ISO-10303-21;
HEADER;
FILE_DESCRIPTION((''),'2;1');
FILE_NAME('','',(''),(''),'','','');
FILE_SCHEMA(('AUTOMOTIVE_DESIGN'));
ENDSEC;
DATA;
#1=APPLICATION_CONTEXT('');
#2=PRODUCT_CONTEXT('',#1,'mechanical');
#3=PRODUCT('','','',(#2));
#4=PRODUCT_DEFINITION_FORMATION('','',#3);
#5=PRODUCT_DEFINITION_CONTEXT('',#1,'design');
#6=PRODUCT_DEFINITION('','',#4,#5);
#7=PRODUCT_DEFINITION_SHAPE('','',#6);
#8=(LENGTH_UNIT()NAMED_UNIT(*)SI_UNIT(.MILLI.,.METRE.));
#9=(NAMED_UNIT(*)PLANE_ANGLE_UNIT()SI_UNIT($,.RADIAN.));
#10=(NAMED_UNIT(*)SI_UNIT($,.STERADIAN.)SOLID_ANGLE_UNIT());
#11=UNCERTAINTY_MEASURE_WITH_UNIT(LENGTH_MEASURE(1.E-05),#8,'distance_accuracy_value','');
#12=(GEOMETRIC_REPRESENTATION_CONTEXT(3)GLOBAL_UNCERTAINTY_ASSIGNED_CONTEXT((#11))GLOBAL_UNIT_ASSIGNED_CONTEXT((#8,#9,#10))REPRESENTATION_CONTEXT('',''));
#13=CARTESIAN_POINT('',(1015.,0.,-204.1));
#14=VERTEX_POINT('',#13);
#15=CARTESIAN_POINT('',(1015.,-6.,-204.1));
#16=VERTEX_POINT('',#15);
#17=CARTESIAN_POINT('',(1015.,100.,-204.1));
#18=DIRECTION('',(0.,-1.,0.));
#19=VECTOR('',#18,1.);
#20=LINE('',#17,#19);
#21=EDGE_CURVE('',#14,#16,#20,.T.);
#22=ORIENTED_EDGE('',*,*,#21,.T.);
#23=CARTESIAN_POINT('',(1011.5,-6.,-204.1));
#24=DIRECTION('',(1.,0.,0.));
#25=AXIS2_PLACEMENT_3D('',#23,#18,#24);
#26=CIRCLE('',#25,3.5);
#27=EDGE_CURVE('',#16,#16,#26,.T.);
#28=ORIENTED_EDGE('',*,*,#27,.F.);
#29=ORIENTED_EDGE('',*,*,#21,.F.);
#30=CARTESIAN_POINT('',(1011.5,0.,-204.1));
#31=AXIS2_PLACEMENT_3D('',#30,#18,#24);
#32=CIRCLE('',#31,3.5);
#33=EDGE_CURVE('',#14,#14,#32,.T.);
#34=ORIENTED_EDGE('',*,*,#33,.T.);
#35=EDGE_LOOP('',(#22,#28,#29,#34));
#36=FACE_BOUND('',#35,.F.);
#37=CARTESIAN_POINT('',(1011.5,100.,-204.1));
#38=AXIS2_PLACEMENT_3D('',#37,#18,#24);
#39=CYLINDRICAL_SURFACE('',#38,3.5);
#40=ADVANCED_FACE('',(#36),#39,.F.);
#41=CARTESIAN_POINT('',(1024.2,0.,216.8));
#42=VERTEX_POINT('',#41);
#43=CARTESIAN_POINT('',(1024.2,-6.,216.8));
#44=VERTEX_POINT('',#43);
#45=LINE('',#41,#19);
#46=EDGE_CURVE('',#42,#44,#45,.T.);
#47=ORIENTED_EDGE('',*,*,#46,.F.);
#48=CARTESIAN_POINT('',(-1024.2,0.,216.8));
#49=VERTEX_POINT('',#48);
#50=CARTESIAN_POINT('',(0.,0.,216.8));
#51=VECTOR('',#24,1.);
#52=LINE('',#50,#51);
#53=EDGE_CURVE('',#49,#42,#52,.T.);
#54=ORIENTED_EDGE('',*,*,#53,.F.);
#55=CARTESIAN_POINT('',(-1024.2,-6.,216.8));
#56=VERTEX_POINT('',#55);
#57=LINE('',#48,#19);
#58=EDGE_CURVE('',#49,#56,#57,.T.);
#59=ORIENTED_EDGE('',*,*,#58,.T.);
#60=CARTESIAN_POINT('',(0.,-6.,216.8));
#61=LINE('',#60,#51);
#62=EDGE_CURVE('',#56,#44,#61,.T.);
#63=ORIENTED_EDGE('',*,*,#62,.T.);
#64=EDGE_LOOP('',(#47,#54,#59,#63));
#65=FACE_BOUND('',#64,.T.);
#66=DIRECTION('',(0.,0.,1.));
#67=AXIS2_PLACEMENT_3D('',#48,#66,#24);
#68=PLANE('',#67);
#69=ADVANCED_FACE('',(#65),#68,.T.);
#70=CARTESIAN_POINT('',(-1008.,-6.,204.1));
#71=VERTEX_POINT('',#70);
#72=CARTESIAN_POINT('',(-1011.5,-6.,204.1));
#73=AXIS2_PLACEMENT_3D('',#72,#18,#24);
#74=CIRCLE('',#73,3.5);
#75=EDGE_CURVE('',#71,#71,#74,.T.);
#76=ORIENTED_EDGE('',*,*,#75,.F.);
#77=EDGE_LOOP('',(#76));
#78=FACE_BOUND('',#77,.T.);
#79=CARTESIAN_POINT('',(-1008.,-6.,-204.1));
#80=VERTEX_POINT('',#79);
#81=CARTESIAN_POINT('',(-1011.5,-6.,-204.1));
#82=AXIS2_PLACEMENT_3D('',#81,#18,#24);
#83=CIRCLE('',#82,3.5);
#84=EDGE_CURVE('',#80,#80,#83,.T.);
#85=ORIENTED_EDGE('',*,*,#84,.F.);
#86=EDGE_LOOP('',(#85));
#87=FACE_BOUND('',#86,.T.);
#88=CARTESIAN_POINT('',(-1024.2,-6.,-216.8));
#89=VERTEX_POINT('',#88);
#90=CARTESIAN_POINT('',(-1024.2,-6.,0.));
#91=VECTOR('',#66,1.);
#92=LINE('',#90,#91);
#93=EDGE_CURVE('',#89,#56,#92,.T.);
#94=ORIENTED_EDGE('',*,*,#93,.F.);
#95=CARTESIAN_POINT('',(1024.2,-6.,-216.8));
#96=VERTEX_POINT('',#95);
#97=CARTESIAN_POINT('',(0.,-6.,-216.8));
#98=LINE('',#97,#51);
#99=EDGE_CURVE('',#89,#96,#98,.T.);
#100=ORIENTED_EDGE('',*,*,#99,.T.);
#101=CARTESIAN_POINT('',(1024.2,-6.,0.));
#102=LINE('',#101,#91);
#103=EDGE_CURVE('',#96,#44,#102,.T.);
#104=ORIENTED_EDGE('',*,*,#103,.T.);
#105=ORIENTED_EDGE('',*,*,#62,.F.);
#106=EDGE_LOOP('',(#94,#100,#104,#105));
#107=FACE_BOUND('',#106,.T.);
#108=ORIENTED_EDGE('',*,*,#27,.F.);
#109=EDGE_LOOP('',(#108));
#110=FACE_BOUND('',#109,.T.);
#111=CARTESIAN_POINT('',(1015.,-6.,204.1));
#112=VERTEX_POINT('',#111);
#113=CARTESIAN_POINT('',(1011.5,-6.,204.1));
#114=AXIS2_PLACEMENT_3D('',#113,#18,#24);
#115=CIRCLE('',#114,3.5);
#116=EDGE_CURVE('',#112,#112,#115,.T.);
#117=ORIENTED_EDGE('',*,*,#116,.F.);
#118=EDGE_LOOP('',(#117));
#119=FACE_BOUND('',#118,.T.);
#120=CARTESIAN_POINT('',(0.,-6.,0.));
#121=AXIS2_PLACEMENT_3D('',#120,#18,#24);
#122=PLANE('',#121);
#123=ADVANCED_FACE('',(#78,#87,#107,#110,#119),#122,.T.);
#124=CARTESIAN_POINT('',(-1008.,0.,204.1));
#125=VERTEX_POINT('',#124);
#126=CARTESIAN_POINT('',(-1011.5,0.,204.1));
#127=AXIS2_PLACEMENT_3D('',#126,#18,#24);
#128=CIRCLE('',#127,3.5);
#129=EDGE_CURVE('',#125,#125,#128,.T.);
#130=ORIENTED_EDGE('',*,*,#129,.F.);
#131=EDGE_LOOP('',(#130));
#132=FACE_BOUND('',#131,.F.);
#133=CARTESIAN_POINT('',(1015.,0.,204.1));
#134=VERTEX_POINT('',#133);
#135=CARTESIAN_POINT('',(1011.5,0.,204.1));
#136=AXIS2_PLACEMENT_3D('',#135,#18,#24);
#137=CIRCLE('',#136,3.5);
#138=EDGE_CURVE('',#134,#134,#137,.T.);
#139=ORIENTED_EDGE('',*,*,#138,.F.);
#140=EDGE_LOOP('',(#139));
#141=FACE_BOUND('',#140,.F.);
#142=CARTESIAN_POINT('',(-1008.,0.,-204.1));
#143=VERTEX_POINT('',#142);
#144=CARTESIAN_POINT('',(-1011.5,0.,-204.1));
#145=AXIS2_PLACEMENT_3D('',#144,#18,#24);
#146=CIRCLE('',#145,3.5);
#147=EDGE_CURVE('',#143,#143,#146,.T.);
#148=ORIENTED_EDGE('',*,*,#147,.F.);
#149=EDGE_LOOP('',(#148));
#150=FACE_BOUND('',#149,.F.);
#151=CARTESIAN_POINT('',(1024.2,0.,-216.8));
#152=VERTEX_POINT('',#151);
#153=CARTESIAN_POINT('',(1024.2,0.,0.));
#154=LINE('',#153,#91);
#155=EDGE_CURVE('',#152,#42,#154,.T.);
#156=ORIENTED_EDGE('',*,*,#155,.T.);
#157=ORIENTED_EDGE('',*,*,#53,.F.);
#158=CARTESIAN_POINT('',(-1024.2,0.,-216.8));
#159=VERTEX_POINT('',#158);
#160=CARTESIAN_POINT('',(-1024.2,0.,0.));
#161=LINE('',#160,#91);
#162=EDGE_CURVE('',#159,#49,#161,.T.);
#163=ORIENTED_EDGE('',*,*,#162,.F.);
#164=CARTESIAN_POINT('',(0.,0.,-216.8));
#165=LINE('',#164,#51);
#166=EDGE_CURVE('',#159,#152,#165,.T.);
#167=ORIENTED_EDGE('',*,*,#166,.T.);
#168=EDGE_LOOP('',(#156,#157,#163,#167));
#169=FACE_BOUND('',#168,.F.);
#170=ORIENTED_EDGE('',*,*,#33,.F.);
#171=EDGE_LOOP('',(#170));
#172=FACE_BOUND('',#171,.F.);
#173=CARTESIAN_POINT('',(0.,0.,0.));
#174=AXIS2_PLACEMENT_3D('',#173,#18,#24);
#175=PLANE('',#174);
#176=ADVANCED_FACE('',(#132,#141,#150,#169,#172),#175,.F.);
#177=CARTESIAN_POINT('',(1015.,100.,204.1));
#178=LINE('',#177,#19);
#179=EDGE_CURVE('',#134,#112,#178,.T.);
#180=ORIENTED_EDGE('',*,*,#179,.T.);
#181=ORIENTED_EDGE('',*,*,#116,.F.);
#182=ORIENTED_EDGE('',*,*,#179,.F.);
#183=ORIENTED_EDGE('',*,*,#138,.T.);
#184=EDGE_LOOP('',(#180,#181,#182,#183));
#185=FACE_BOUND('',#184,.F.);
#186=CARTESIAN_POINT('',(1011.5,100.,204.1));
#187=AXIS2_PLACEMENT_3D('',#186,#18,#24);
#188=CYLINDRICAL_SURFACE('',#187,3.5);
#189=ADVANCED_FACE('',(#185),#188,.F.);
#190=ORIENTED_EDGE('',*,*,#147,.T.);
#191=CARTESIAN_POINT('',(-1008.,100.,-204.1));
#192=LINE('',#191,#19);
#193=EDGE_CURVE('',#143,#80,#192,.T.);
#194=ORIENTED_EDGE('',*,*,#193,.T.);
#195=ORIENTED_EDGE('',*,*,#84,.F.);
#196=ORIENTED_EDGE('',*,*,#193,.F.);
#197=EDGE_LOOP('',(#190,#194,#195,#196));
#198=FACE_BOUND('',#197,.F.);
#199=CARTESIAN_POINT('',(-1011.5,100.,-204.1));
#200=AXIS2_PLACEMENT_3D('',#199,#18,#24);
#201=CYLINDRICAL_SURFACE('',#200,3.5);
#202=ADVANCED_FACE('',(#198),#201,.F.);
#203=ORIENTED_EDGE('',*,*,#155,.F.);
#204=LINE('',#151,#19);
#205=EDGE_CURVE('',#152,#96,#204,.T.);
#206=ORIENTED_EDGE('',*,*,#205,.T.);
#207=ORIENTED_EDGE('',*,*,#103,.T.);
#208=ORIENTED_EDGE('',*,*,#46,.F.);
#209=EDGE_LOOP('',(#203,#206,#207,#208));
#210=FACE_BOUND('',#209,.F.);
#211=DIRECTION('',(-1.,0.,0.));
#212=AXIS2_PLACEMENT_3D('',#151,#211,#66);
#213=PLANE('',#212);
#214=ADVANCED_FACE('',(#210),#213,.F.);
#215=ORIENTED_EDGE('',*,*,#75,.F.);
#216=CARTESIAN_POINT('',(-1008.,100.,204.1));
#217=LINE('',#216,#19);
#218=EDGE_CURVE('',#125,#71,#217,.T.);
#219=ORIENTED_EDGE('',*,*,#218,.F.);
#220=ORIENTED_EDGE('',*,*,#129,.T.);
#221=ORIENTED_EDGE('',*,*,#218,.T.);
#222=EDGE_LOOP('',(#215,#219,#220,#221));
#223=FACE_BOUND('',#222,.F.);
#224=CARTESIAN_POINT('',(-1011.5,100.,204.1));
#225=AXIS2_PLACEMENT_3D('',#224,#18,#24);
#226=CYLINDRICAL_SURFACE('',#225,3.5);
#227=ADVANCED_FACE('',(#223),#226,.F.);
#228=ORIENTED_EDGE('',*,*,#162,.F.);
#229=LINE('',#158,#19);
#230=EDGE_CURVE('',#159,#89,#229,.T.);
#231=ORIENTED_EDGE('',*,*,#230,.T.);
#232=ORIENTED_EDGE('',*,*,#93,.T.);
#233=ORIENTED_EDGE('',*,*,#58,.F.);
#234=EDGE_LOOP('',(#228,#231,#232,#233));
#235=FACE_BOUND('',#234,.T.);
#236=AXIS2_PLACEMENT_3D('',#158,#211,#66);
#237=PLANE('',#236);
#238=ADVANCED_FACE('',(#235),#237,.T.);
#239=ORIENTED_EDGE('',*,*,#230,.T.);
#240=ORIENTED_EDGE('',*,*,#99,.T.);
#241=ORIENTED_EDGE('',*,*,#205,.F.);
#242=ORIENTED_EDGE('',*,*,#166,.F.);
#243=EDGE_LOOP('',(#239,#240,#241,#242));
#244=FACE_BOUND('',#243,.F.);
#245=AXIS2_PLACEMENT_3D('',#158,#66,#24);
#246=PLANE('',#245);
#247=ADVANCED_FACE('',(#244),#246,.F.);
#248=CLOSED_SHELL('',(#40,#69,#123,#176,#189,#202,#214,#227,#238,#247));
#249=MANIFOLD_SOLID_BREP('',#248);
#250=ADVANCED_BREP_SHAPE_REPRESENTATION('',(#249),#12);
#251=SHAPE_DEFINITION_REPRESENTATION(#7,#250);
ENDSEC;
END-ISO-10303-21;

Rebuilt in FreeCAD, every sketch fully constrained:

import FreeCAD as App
import Part
import Sketcher

V = App.Vector
Q = App.Units.Quantity

doc = App.newDocument("Part")
body = doc.addObject("PartDesign::Body", "Body")

# Sketch on XZ plane
sketch1 = body.newObject("Sketcher::SketchObject", "Sketch")
sketch1.AttachmentSupport = (doc.getObject("XZ_Plane"), [""])
sketch1.MapMode = "FlatFace"
sketch1.addGeometry([
    Part.LineSegment(V(-1024, 217, 0), V(-1024, -217, 0)),
    Part.LineSegment(V(-1024, -217, 0), V(1024, -217, 0)),
    Part.LineSegment(V(1024, -217, 0), V(1024, 217, 0)),
    Part.LineSegment(V(1024, 217, 0), V(-1024, 217, 0)),
], False)
sketch1.addConstraint([
    Sketcher.Constraint("Coincident", 0, 2, 1, 1),
    Sketcher.Constraint("Coincident", 1, 2, 2, 1),
    Sketcher.Constraint("Coincident", 2, 2, 3, 1),
    Sketcher.Constraint("Coincident", 3, 2, 0, 1),
    Sketcher.Constraint("Vertical", 0),
    Sketcher.Constraint("Horizontal", 1),
    Sketcher.Constraint("Vertical", 2),
    Sketcher.Constraint("Horizontal", 3),
    Sketcher.Constraint("Symmetric", 0, 2, 2, 2, -1, 1),
    Sketcher.Constraint("DistanceX", 1, 1, 1, 2, Q("2048.4 mm")),
    Sketcher.Constraint("DistanceY", 0, 2, 0, 1, Q("433.6 mm")),
])
pad1 = body.newObject("PartDesign::Pad", "Pad")
pad1.Profile = sketch1
pad1.Length = 6

# Sketch on XZ plane
sketch2 = body.newObject("Sketcher::SketchObject", "Sketch001")
sketch2.AttachmentSupport = (doc.getObject("XZ_Plane"), [""])
sketch2.MapMode = "FlatFace"
sketch2.addGeometry([
    Part.Circle(V(-1011.5, 204.1, 0), V(0, 0, 1), 3.5),
    Part.Circle(V(-1011.5, -204.1, 0), V(0, 0, 1), 3.5),
    Part.Circle(V(1011.5, 204.1, 0), V(0, 0, 1), 3.5),
    Part.Circle(V(1011.5, -204.1, 0), V(0, 0, 1), 3.5),
], False)
sketch2.addConstraint([
    Sketcher.Constraint("Equal", 0, 1),
    Sketcher.Constraint("Equal", 1, 2),
    Sketcher.Constraint("Equal", 2, 3),
    Sketcher.Constraint("Symmetric", 1, 3, 2, 3, -1, 1),
    Sketcher.Constraint("Symmetric", 0, 3, 3, 3, -1, 1),
    Sketcher.Constraint("Symmetric", 0, 3, 2, 3, -2),
    Sketcher.Constraint("Diameter", 0, Q("7 mm")),
    Sketcher.Constraint("DistanceX", 0, 3, 2, 3, Q("2023 mm")),
    Sketcher.Constraint("DistanceY", -1, 1, 0, 3, Q("204.1 mm")),
])
doc.recompute()
hole = body.newObject("PartDesign::Hole", "Hole")
hole.Profile = sketch2
hole.ThreadType = "None"
hole.Diameter = 7
hole.DepthType = "Dimension"
hole.Depth = 100
hole.DrillPoint = "Flat"
hole.Reversed = True

doc.recompute()
